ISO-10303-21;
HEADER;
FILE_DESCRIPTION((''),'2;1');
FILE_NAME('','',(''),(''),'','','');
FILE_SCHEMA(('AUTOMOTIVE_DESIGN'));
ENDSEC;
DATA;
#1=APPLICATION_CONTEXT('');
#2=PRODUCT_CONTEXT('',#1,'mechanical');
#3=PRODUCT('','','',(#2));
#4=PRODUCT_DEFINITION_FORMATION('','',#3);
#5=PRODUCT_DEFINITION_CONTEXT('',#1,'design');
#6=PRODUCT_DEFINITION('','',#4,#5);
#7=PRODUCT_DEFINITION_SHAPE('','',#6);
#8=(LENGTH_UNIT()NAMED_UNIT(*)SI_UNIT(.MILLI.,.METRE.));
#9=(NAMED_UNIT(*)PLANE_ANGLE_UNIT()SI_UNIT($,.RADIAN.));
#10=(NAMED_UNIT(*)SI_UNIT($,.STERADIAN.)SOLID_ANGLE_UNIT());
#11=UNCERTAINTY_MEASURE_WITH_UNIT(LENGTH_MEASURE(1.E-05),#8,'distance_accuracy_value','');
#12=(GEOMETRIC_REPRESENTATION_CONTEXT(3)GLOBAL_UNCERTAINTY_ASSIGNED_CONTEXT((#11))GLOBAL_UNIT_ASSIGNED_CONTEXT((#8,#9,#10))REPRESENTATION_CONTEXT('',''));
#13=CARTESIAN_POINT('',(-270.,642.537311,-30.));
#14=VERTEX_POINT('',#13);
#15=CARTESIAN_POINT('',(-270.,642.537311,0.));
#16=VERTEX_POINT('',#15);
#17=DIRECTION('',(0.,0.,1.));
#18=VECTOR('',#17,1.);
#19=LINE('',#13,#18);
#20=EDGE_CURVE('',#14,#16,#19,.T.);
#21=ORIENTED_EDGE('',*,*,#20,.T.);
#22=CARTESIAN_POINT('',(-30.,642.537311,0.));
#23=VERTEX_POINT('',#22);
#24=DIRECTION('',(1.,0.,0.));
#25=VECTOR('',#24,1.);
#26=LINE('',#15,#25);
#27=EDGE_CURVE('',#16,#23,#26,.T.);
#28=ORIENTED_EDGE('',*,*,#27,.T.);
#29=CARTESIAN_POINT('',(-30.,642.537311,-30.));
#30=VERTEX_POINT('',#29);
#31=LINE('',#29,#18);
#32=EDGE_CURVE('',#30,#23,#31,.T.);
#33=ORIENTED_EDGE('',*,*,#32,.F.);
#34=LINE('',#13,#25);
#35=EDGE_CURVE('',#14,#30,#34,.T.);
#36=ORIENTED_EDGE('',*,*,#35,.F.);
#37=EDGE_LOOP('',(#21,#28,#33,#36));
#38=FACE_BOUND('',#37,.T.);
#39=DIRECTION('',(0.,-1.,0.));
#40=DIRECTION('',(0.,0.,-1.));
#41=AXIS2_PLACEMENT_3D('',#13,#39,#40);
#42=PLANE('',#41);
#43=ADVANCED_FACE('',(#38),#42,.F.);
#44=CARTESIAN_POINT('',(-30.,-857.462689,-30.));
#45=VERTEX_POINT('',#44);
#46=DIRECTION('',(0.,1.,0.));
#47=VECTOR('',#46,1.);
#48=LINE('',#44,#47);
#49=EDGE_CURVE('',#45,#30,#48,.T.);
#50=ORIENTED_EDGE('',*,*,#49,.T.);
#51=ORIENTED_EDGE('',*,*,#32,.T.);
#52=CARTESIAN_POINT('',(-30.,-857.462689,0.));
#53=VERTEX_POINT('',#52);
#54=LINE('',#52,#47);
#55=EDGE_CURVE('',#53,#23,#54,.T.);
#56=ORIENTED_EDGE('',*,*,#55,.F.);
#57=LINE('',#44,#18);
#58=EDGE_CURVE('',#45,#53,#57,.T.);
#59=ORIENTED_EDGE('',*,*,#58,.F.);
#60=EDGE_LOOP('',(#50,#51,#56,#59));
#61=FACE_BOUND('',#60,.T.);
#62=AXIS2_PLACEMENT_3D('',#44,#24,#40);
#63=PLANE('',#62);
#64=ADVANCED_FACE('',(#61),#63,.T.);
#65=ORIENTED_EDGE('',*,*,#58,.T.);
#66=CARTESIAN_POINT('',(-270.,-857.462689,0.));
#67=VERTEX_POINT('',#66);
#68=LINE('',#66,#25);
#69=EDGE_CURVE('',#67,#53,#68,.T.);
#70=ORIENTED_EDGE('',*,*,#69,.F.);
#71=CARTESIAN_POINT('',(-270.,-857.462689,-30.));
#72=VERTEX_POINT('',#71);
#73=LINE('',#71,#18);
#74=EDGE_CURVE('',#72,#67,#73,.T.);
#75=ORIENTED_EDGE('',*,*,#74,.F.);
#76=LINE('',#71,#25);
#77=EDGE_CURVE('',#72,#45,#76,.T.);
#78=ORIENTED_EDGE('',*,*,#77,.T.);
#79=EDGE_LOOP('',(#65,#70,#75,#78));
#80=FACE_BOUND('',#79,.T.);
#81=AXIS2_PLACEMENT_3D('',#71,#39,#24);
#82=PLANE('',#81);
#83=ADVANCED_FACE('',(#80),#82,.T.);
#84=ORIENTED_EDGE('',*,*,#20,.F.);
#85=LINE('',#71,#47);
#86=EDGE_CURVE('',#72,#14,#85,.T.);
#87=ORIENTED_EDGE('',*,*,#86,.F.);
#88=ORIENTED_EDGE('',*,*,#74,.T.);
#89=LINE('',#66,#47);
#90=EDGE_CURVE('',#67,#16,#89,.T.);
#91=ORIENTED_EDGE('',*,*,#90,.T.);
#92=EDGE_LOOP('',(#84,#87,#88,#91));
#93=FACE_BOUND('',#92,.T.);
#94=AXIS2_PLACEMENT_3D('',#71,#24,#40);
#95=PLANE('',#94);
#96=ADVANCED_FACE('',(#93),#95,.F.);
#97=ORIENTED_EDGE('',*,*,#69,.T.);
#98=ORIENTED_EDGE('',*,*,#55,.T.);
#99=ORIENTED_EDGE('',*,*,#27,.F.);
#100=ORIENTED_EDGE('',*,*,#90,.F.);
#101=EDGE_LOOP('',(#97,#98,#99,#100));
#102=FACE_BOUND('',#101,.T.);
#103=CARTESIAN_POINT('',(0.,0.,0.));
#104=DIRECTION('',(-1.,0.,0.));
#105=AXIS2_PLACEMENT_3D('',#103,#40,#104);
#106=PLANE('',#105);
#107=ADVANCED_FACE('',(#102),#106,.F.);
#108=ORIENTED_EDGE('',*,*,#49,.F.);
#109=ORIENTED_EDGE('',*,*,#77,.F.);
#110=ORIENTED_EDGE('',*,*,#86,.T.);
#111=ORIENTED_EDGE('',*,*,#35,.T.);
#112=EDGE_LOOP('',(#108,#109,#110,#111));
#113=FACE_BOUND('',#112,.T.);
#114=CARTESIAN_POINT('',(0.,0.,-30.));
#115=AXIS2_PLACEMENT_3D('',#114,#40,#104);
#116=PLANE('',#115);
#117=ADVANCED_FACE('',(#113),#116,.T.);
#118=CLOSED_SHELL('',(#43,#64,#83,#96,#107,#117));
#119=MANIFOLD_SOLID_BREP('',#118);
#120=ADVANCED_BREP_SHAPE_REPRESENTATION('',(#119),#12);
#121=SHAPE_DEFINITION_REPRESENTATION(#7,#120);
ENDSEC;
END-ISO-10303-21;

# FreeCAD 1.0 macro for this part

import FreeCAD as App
import Part
import Sketcher

V = App.Vector
Q = App.Units.Quantity

doc = App.newDocument("Part")
body = doc.addObject("PartDesign::Body", "Body")

# Sketch on XY plane
sketch1 = body.newObject("Sketcher::SketchObject", "Sketch")
sketch1.AttachmentSupport = (doc.getObject("XY_Plane"), [""])
sketch1.MapMode = "FlatFace"
sketch1.addGeometry(Part.LineSegment(V(-270, 643, 0), V(-270, -857, 0)), False)
sketch1.addGeometry(Part.LineSegment(V(-270, -857, 0), V(-30, -857, 0)), False)
sketch1.addGeometry(Part.LineSegment(V(-30, -857, 0), V(-30, 643, 0)), False)
sketch1.addGeometry(Part.LineSegment(V(-30, 643, 0), V(-270, 643, 0)), False)
sketch1.addConstraint(Sketcher.Constraint("Coincident", 0, 2, 1, 1))
sketch1.addConstraint(Sketcher.Constraint("Coincident", 1, 2, 2, 1))
sketch1.addConstraint(Sketcher.Constraint("Coincident", 2, 2, 3, 1))
sketch1.addConstraint(Sketcher.Constraint("Coincident", 3, 2, 0, 1))
sketch1.addConstraint(Sketcher.Constraint("Vertical", 0))
sketch1.addConstraint(Sketcher.Constraint("Horizontal", 1))
sketch1.addConstraint(Sketcher.Constraint("Vertical", 2))
sketch1.addConstraint(Sketcher.Constraint("Horizontal", 3))
sketch1.addConstraint(Sketcher.Constraint("DistanceX", 1, 1, 1, 2, Q("240 mm")))
sketch1.addConstraint(Sketcher.Constraint("DistanceY", 0, 2, 0, 1, Q("1500 mm")))
sketch1.addConstraint(Sketcher.Constraint("DistanceX", 0, 2, -1, 1, Q("270 mm")))
sketch1.addConstraint(Sketcher.Constraint("DistanceY", 0, 2, -1, 1, Q("857.462689 mm")))
pad1 = body.newObject("PartDesign::Pad", "Pad")
pad1.Profile = sketch1
pad1.Length = 30
pad1.Reversed = True

doc.recompute()
